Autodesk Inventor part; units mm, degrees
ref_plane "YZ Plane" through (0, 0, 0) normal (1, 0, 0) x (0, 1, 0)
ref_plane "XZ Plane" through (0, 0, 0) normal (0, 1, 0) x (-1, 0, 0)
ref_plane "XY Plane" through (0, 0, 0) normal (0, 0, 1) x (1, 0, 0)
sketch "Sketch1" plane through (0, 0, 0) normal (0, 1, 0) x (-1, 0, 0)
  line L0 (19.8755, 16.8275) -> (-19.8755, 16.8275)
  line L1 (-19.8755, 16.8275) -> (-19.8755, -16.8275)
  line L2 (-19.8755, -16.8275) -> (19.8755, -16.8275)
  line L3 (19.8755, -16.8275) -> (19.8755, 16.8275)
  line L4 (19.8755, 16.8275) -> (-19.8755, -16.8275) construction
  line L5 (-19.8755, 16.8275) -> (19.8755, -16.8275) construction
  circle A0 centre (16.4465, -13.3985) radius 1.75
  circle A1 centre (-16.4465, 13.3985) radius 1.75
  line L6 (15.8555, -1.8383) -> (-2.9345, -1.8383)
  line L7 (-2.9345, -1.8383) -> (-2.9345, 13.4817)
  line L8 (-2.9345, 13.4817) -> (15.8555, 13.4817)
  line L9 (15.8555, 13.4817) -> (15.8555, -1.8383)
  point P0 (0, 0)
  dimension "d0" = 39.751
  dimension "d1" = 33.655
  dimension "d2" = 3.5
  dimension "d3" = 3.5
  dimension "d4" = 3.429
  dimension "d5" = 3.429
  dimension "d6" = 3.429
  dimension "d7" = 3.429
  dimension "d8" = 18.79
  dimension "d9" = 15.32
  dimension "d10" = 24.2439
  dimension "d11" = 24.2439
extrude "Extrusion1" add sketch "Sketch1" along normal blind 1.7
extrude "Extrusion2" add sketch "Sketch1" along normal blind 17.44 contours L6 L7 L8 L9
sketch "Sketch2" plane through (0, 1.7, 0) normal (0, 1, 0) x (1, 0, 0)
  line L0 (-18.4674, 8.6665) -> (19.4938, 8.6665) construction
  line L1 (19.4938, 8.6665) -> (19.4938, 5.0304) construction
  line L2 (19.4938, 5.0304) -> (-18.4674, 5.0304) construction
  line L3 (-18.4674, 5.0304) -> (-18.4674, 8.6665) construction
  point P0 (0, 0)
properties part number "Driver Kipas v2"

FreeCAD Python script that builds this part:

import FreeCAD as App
import Part
import Sketcher
Q = App.Units.Quantity

doc = App.newDocument("Part")
body = doc.addObject("PartDesign::Body", "Body")

sketch1 = body.newObject("Sketcher::SketchObject", "Sketch")
sketch1.AttachmentSupport = (doc.getObject("XZ_Plane"), [""])
sketch1.MapMode = "FlatFace"
sketch1.addGeometry([
    Part.LineSegment(App.Vector(-19.9, -16.8, 0), App.Vector(-19.9, 16.8, 0)),
    Part.LineSegment(App.Vector(-19.9, 16.8, 0), App.Vector(19.9, 16.8, 0)),
    Part.LineSegment(App.Vector(19.9, 16.8, 0), App.Vector(19.9, -16.8, 0)),
    Part.LineSegment(App.Vector(19.9, -16.8, 0), App.Vector(-19.9, -16.8, 0)),
    Part.Circle(App.Vector(-16.4, -13.4, 0), App.Vector(0, 0, 1), 1.8),
    Part.Circle(App.Vector(16.4, 13.4, 0), App.Vector(0, 0, 1), 1.8),
    Part.LineSegment(App.Vector(-15.9, 13.5, 0), App.Vector(-15.9, -1.8, 0)),
    Part.LineSegment(App.Vector(-15.9, -1.8, 0), App.Vector(2.9, -1.8, 0)),
    Part.LineSegment(App.Vector(2.9, -1.8, 0), App.Vector(2.9, 13.5, 0)),
    Part.LineSegment(App.Vector(2.9, 13.5, 0), App.Vector(-15.9, 13.5, 0)),
], False)
sketch1.addConstraint([
    Sketcher.Constraint("Coincident", 0, 2, 1, 1),
    Sketcher.Constraint("Coincident", 1, 2, 2, 1),
    Sketcher.Constraint("Coincident", 2, 2, 3, 1),
    Sketcher.Constraint("Coincident", 3, 2, 0, 1),
    Sketcher.Constraint("Coincident", 6, 2, 7, 1),
    Sketcher.Constraint("Coincident", 7, 2, 8, 1),
    Sketcher.Constraint("Coincident", 8, 2, 9, 1),
    Sketcher.Constraint("Coincident", 9, 2, 6, 1),
    Sketcher.Constraint("Vertical", 0),
    Sketcher.Constraint("Horizontal", 1),
    Sketcher.Constraint("Vertical", 2),
    Sketcher.Constraint("Horizontal", 3),
    Sketcher.Constraint("Vertical", 6),
    Sketcher.Constraint("Horizontal", 7),
    Sketcher.Constraint("Vertical", 8),
    Sketcher.Constraint("Horizontal", 9),
    Sketcher.Constraint("Equal", 4, 5),
    Sketcher.Constraint("Symmetric", 4, 3, 5, 3, -1, 1),
    Sketcher.Constraint("Symmetric", 0, 2, 2, 2, -1, 1),
    Sketcher.Constraint("Diameter", 4, Q("0.1378 in")),
    Sketcher.Constraint("DistanceX", 1, 1, 1, 2, Q("1.565 in")),
    Sketcher.Constraint("DistanceY", 0, 1, 0, 2, Q("1.325 in")),
    Sketcher.Constraint("DistanceX", 0, 2, 4, 3, Q("0.135 in")),
    Sketcher.Constraint("DistanceY", 5, 3, 0, 2, Q("0.135 in")),
    Sketcher.Constraint("DistanceX", 7, 1, 7, 2, Q("18.79 mm")),
    Sketcher.Constraint("DistanceY", 6, 2, 6, 1, Q("15.32 mm")),
    Sketcher.Constraint("DistanceX", 6, 2, -1, 1, Q("15.8555 mm")),
    Sketcher.Constraint("DistanceY", 6, 2, -1, 1, Q("1.8383 mm")),
])
pad1 = body.newObject("PartDesign::Pad", "Pad")
pad1.Profile = sketch1
pad1.Length = 1.7
pad1.Reversed = True

sketch2 = body.newObject("Sketcher::SketchObject", "Sketch001")
sketch2.AttachmentSupport = (doc.getObject("XZ_Plane"), [""])
sketch2.MapMode = "FlatFace"
sketch2.addGeometry([
    Part.LineSegment(App.Vector(3, -2, 0), App.Vector(-16, -2, 0)),
    Part.LineSegment(App.Vector(-16, -2, 0), App.Vector(-16, 13, 0)),
    Part.LineSegment(App.Vector(-16, 13, 0), App.Vector(3, 13, 0)),
    Part.LineSegment(App.Vector(3, 13, 0), App.Vector(3, -2, 0)),
], False)
sketch2.addConstraint([
    Sketcher.Constraint("Coincident", 0, 2, 1, 1),
    Sketcher.Constraint("Coincident", 1, 2, 2, 1),
    Sketcher.Constraint("Coincident", 2, 2, 3, 1),
    Sketcher.Constraint("Coincident", 3, 2, 0, 1),
    Sketcher.Constraint("Horizontal", 0),
    Sketcher.Constraint("Vertical", 1),
    Sketcher.Constraint("Horizontal", 2),
    Sketcher.Constraint("Vertical", 3),
    Sketcher.Constraint("DistanceX", 0, 2, 0, 1, Q("18.79 mm")),
    Sketcher.Constraint("DistanceY", 1, 1, 1, 2, Q("15.32 mm")),
    Sketcher.Constraint("DistanceX", 0, 2, -1, 1, Q("15.8555 mm")),
    Sketcher.Constraint("DistanceY", 0, 2, -1, 1, Q("1.8383 mm")),
])
pad2 = body.newObject("PartDesign::Pad", "Pad001")
pad2.Profile = sketch2
pad2.Length = 17.44
pad2.Reversed = True

doc.recompute()
